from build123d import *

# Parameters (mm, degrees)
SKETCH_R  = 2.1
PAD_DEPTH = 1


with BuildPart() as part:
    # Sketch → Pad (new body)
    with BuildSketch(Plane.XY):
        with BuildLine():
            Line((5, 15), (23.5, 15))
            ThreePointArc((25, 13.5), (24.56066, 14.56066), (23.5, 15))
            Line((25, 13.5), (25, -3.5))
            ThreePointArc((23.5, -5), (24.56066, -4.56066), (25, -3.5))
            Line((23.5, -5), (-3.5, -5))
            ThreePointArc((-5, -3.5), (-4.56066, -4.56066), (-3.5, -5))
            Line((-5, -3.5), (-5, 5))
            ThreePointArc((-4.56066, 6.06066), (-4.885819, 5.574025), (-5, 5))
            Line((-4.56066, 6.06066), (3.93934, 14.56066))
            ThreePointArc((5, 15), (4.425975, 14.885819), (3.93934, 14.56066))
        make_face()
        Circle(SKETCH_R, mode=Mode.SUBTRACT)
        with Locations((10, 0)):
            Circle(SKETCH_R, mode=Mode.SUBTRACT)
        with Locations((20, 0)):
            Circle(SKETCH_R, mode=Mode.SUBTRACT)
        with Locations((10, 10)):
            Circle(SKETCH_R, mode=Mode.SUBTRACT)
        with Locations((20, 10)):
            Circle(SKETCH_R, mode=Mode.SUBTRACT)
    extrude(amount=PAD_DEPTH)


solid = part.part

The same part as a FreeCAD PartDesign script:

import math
import FreeCAD as App
import Part
import Sketcher
from FreeCAD import Vector
Q = App.Units.Quantity

doc = App.newDocument("Part")
params = doc.addObject("Spreadsheet::Sheet", "Params")
for row, (alias, value) in enumerate([
    ("sketch1_diameter", "4.2 mm"),
    ("sketch1_radius", "1.500001 mm"),
    ("sketch1_width", "27 mm"),
    ("sketch1_height", "17 mm"),
    ("sketch1_width2", "18.5 mm"),
    ("pad1_length", "1 mm"),
], start=1):
    params.set(f"A{row}", alias)
    params.set(f"B{row}", "=" + value)
    params.setAlias(f"B{row}", alias)

body = doc.addObject("PartDesign::Body", "Body")

# Sketch on XY plane
sketch1 = body.newObject("Sketcher::SketchObject", "Sketch")
sketch1.AttachmentSupport = (doc.getObject("XY_Plane"), [""])
sketch1.MapMode = "FlatFace"
sketch1.addGeometry(Part.LineSegment(Vector(23.5, 15, 0), Vector(5, 15, 0)), False)
sketch1.addGeometry(Part.ArcOfCircle(Part.Circle(Vector(5, 13.5, 0), Vector(0, 0, 1), 1.5), math.radians(90), math.radians(135)), False)
sketch1.addGeometry(Part.LineSegment(Vector(3.9, 14.6, 0), Vector(-4.6, 6.1, 0)), False)
sketch1.addGeometry(Part.ArcOfCircle(Part.Circle(Vector(-3.5, 5, 0), Vector(0, 0, 1), 1.5), math.radians(135), math.radians(180)), False)
sketch1.addGeometry(Part.LineSegment(Vector(-5, 5, 0), Vector(-5, -3.5, 0)), False)
sketch1.addGeometry(Part.ArcOfCircle(Part.Circle(Vector(-3.5, -3.5, 0), Vector(0, 0, 1), 1.5), math.radians(-180), math.radians(-90)), False)
sketch1.addGeometry(Part.LineSegment(Vector(-3.5, -5, 0), Vector(23.5, -5, 0)), False)
sketch1.addGeometry(Part.ArcOfCircle(Part.Circle(Vector(23.5, -3.5, 0), Vector(0, 0, 1), 1.5), math.radians(-90), math.radians(0)), False)
sketch1.addGeometry(Part.LineSegment(Vector(25, -3.5, 0), Vector(25, 13.5, 0)), False)
sketch1.addGeometry(Part.ArcOfCircle(Part.Circle(Vector(23.5, 13.5, 0), Vector(0, 0, 1), 1.5), math.radians(0), math.radians(90)), False)
sketch1.addGeometry(Part.Circle(Vector(20, 0, 0), Vector(0, 0, 1), 2.1), False)
sketch1.addGeometry(Part.Circle(Vector(10, 0, 0), Vector(0, 0, 1), 2.1), False)
sketch1.addGeometry(Part.Circle(Vector(0, 0, 0), Vector(0, 0, 1), 2.1), False)
sketch1.addGeometry(Part.Circle(Vector(20, 10, 0), Vector(0, 0, 1), 2.1), False)
sketch1.addGeometry(Part.Circle(Vector(10, 10, 0), Vector(0, 0, 1), 2.1), False)
sketch1.addConstraint(Sketcher.Constraint("Tangent", 0, 2, 1, 1))
sketch1.addConstraint(Sketcher.Constraint("Tangent", 1, 2, 2, 1))
sketch1.addConstraint(Sketcher.Constraint("Tangent", 2, 2, 3, 1))
sketch1.addConstraint(Sketcher.Constraint("Tangent", 3, 2, 4, 1))
sketch1.addConstraint(Sketcher.Constraint("Tangent", 4, 2, 5, 1))
sketch1.addConstraint(Sketcher.Constraint("Tangent", 5, 2, 6, 1))
sketch1.addConstraint(Sketcher.Constraint("Tangent", 6, 2, 7, 1))
sketch1.addConstraint(Sketcher.Constraint("Tangent", 7, 2, 8, 1))
sketch1.addConstraint(Sketcher.Constraint("Tangent", 8, 2, 9, 1))
sketch1.addConstraint(Sketcher.Constraint("Tangent", 9, 2, 0, 1))
sketch1.addConstraint(Sketcher.Constraint("Horizontal", 0))
sketch1.addConstraint(Sketcher.Constraint("Vertical", 4))
sketch1.addConstraint(Sketcher.Constraint("Horizontal", 6))
sketch1.addConstraint(Sketcher.Constraint("Vertical", 8))
sketch1.addConstraint(Sketcher.Constraint("Coincident", 12, 3, -1, 1))
sketch1.addConstraint(Sketcher.Constraint("Equal", 1, 3))
sketch1.addConstraint(Sketcher.Constraint("Equal", 3, 5))
sketch1.addConstraint(Sketcher.Constraint("Equal", 5, 7))
sketch1.addConstraint(Sketcher.Constraint("Equal", 7, 9))
sketch1.addConstraint(Sketcher.Constraint("Equal", 10, 11))
sketch1.addConstraint(Sketcher.Constraint("Equal", 11, 12))
sketch1.addConstraint(Sketcher.Constraint("Equal", 12, 13))
sketch1.addConstraint(Sketcher.Constraint("Equal", 13, 14))
sketch1.addConstraint(Sketcher.Constraint("PointOnObject", 10, 3, -1))
sketch1.addConstraint(Sketcher.Constraint("PointOnObject", 11, 3, -1))
sketch1.addConstraint(Sketcher.Constraint("Horizontal", 13, 3, 14, 3))
sketch1.addConstraint(Sketcher.Constraint("Vertical", 10, 3, 13, 3))
sketch1.addConstraint(Sketcher.Constraint("Vertical", 11, 3, 14, 3))
sketch1.addConstraint(Sketcher.Constraint("Diameter", 10, Q("4.2 mm")))
sketch1.addConstraint(Sketcher.Constraint("Radius", 5, Q("1.500001 mm")))
sketch1.addConstraint(Sketcher.Constraint("DistanceX", 6, 1, 6, 2, Q("27 mm")))
sketch1.addConstraint(Sketcher.Constraint("DistanceY", 8, 1, 8, 2, Q("17 mm")))
sketch1.addConstraint(Sketcher.Constraint("Angle", 2, Q("-135 deg")))
sketch1.addConstraint(Sketcher.Constraint("DistanceX", 0, 2, 0, 1, Q("18.5 mm")))
sketch1.addConstraint(Sketcher.Constraint("DistanceX", -1, 1, 1, 3, Q("5.000001 mm")))
sketch1.addConstraint(Sketcher.Constraint("DistanceY", -1, 1, 3, 3, Q("4.999999 mm")))
sketch1.addConstraint(Sketcher.Constraint("DistanceX", -1, 1, 10, 3, Q("20 mm")))
sketch1.addConstraint(Sketcher.Constraint("DistanceX", -1, 1, 11, 3, Q("10 mm")))
sketch1.addConstraint(Sketcher.Constraint("DistanceY", -1, 1, 13, 3, Q("10 mm")))
sketch1.setExpression("Constraints[28]", "Params.sketch1_diameter")
sketch1.setExpression("Constraints[29]", "Params.sketch1_radius")
sketch1.setExpression("Constraints[30]", "Params.sketch1_width")
sketch1.setExpression("Constraints[31]", "Params.sketch1_height")
sketch1.setExpression("Constraints[33]", "Params.sketch1_width2")
pad1 = body.newObject("PartDesign::Pad", "Pad")
pad1.Profile = sketch1
pad1.setExpression("Length", "Params.pad1_length")

doc.recompute()
